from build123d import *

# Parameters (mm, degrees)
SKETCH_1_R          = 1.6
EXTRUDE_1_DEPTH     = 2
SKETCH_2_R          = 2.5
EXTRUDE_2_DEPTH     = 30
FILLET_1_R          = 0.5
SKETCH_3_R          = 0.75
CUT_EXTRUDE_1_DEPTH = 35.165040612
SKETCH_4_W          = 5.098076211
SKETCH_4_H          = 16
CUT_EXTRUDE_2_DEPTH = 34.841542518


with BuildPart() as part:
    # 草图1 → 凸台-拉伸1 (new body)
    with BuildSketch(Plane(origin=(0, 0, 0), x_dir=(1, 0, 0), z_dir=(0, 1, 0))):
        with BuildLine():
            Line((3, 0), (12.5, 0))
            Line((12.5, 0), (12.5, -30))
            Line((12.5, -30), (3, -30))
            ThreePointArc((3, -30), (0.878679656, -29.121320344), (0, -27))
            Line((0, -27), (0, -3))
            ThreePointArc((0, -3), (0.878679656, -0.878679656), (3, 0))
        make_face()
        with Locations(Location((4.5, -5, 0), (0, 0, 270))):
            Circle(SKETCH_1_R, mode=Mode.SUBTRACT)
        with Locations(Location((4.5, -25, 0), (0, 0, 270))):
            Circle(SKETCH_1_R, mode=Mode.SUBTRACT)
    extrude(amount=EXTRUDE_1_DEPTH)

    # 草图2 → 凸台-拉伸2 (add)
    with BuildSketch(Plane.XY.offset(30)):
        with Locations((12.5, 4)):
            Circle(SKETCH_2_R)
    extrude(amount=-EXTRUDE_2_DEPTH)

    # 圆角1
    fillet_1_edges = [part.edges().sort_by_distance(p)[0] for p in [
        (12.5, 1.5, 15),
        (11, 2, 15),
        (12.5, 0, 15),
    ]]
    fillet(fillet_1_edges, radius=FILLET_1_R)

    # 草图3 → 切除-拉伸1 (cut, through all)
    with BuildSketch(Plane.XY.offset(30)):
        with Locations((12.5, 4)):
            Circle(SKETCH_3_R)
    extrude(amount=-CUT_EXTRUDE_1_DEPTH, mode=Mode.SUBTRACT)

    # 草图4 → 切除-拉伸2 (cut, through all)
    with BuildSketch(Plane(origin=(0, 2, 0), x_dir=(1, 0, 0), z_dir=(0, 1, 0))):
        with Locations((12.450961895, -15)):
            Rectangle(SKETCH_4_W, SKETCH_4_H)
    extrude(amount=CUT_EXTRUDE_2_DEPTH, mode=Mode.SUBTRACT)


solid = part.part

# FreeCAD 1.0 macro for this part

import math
import FreeCAD as App
import Part
import Sketcher

V = App.Vector


def edges_at(feature, points):
    """Names of the edges that pass closest to the given points."""
    edges = feature.Shape.Edges
    near = lambda p: min(range(len(edges)), key=lambda i: edges[i].distToShape(Part.Vertex(*p))[0])
    return sorted({f"Edge{near(p) + 1}" for p in points})


def add_polygon(sketch, points):
    """Adds a closed chain of lines whose ends are joined by coincident constraints."""
    first, n = sketch.GeometryCount, len(points)
    for a, b in zip(points, points[1:] + points[:1]):
        sketch.addGeometry(Part.LineSegment(App.Vector(*a, 0), App.Vector(*b, 0)), False)
    for i in range(n):
        sketch.addConstraint(Sketcher.Constraint("Coincident", first + i, 2, first + (i + 1) % n, 1))

doc = App.newDocument("Part")
params = doc.addObject("Spreadsheet::Sheet", "Params")
for row, (alias, value) in enumerate([
    ("sketch1_radius", "3 mm"),
    ("sketch1_diameter", "3.2 mm"),
    ("sketch1_height", "24 mm"),
    ("sketch1_width", "9.5 mm"),
    ("pad1_length", "2 mm"),
    ("sketch2_diameter", "5 mm"),
    ("pad2_length", "30 mm"),
    ("fillet_radius", "0.5 mm"),
    ("sketch3_diameter", "1.5 mm"),
    ("sketch4_height", "16 mm"),
], start=1):
    params.set(f"A{row}", alias)
    params.set(f"B{row}", "=" + value)
    params.setAlias(f"B{row}", alias)

body = doc.addObject("PartDesign::Body", "Body")

# Sketch on XZ plane
sketch1 = body.newObject("Sketcher::SketchObject", "Sketch")
sketch1.AttachmentSupport = (doc.getObject("XZ_Plane"), [""])
sketch1.MapMode = "FlatFace"
sketch1.addGeometry(Part.LineSegment(V(12.5, 0, 0), V(3, 0, 0)), False)
sketch1.addGeometry(Part.ArcOfCircle(Part.Circle(V(3, 3, 0), V(0, 0, 1), 3), math.radians(180), math.radians(270)), False)
sketch1.addGeometry(Part.LineSegment(V(0, 3, 0), V(0, 27, 0)), False)
sketch1.addGeometry(Part.ArcOfCircle(Part.Circle(V(3, 27, 0), V(0, 0, 1), 3), math.radians(90), math.radians(180)), False)
sketch1.addGeometry(Part.LineSegment(V(3, 30, 0), V(12.5, 30, 0)), False)
sketch1.addGeometry(Part.LineSegment(V(12.5, 30, 0), V(12.5, 0, 0)), False)
sketch1.addGeometry(Part.Circle(V(4.5, 25, 0), V(0, 0, 1), 1.6), False)
sketch1.addGeometry(Part.Circle(V(4.5, 5, 0), V(0, 0, 1), 1.6), False)
sketch1.addConstraint(Sketcher.Constraint("Tangent", 0, 2, 1, 2))
sketch1.addConstraint(Sketcher.Constraint("Tangent", 1, 1, 2, 1))
sketch1.addConstraint(Sketcher.Constraint("Tangent", 2, 2, 3, 2))
sketch1.addConstraint(Sketcher.Constraint("Tangent", 3, 1, 4, 1))
sketch1.addConstraint(Sketcher.Constraint("Coincident", 4, 2, 5, 1))
sketch1.addConstraint(Sketcher.Constraint("Coincident", 5, 2, 0, 1))
sketch1.addConstraint(Sketcher.Constraint("Horizontal", 0))
sketch1.addConstraint(Sketcher.Constraint("Vertical", 2))
sketch1.addConstraint(Sketcher.Constraint("Horizontal", 4))
sketch1.addConstraint(Sketcher.Constraint("Vertical", 5))
sketch1.addConstraint(Sketcher.Constraint("Equal", 1, 3))
sketch1.addConstraint(Sketcher.Constraint("Equal", 6, 7))
sketch1.addConstraint(Sketcher.Constraint("PointOnObject", 0, 2, -1))
sketch1.addConstraint(Sketcher.Constraint("PointOnObject", 1, 1, -2))
sketch1.addConstraint(Sketcher.Constraint("Vertical", 6, 3, 7, 3))
sketch1.addConstraint(Sketcher.Constraint("Radius", 1, 3.0))
sketch1.addConstraint(Sketcher.Constraint("Diameter", 6, 3.2))
sketch1.addConstraint(Sketcher.Constraint("DistanceY", 2, 1, 2, 2, 24.0))
sketch1.addConstraint(Sketcher.Constraint("DistanceX", 0, 2, 0, 1, 9.5))
sketch1.addConstraint(Sketcher.Constraint("DistanceY", -1, 1, 6, 3, 25.0))
sketch1.addConstraint(Sketcher.Constraint("DistanceY", -1, 1, 7, 3, 5.0))
sketch1.addConstraint(Sketcher.Constraint("DistanceX", 6, 3, 4, 2, 8.0))
sketch1.setExpression("Constraints[15]", "Params.sketch1_radius")
sketch1.setExpression("Constraints[16]", "Params.sketch1_diameter")
sketch1.setExpression("Constraints[17]", "Params.sketch1_height")
sketch1.setExpression("Constraints[18]", "Params.sketch1_width")
pad1 = body.newObject("PartDesign::Pad", "Pad")
pad1.Profile = sketch1
pad1.setExpression("Length", "Params.pad1_length")
pad1.Reversed = True

# Sketch on XY plane
sketch2 = body.newObject("Sketcher::SketchObject", "Sketch001")
sketch2.AttachmentSupport = (doc.getObject("XY_Plane"), [""])
sketch2.MapMode = "FlatFace"
sketch2.AttachmentOffset = App.Placement(V(0, 0, 30), App.Rotation())
sketch2.addGeometry(Part.Circle(V(12.5, 4, 0), V(0, 0, 1), 2.5), False)
sketch2.addConstraint(Sketcher.Constraint("Diameter", 0, 5.0))
sketch2.addConstraint(Sketcher.Constraint("DistanceY", -1, 1, 0, 3, 4.0))
sketch2.addConstraint(Sketcher.Constraint("DistanceX", -1, 1, 0, 3, 12.5))
sketch2.setExpression("Constraints[0]", "Params.sketch2_diameter")
pad2 = body.newObject("PartDesign::Pad", "Pad001")
pad2.Profile = sketch2
pad2.setExpression("Length", "Params.pad2_length")
pad2.Reversed = True
doc.recompute()

fillet = body.newObject("PartDesign::Fillet", "Fillet")
fillet.Base = (pad2, edges_at(pad2, [(12.5, 1.5, 15), (11, 2, 15), (12.5, 0, 15)]))
fillet.setExpression("Radius", "Params.fillet_radius")

# Sketch on XY plane
sketch3 = body.newObject("Sketcher::SketchObject", "Sketch002")
sketch3.AttachmentSupport = (doc.getObject("XY_Plane"), [""])
sketch3.MapMode = "FlatFace"
sketch3.AttachmentOffset = App.Placement(V(0, 0, 30), App.Rotation())
sketch3.addGeometry(Part.Circle(V(12.5, 4, 0), V(0, 0, 1), 0.8), False)
sketch3.addConstraint(Sketcher.Constraint("Diameter", 0, 1.5))
sketch3.addConstraint(Sketcher.Constraint("DistanceY", -1, 1, 0, 3, 4.0))
sketch3.addConstraint(Sketcher.Constraint("DistanceX", -1, 1, 0, 3, 12.5))
sketch3.setExpression("Constraints[0]", "Params.sketch3_diameter")
pocket1 = body.newObject("PartDesign::Pocket", "Pocket")
pocket1.Profile = sketch3
pocket1.Type = "ThroughAll"

# Sketch on XZ plane
sketch4 = body.newObject("Sketcher::SketchObject", "Sketch003")
sketch4.AttachmentSupport = (doc.getObject("XZ_Plane"), [""])
sketch4.MapMode = "FlatFace"
sketch4.AttachmentOffset = App.Placement(V(0, 0, -2), App.Rotation())
add_polygon(sketch4, [(10, 7), (10, 23), (15, 23), (15, 7)])  # lines 0-3
sketch4.addConstraint(Sketcher.Constraint("Vertical", 0))
sketch4.addConstraint(Sketcher.Constraint("Horizontal", 1))
sketch4.addConstraint(Sketcher.Constraint("Vertical", 2))
sketch4.addConstraint(Sketcher.Constraint("Horizontal", 3))
sketch4.addConstraint(Sketcher.Constraint("DistanceY", 0, 1, 0, 2, 16.0))
sketch4.addConstraint(Sketcher.Constraint("DistanceY", -1, 1, 0, 2, 23.0))
sketch4.addConstraint(Sketcher.Constraint("DistanceX", -1, 1, 1, 2, 15.0))
sketch4.addConstraint(Sketcher.Constraint("DistanceX", 1, 1, 1, 2, 5.098076))
sketch4.setExpression("Constraints[8]", "Params.sketch4_height")
pocket2 = body.newObject("PartDesign::Pocket", "Pocket001")
pocket2.Profile = sketch4
pocket2.Type = "ThroughAll"

doc.recompute()
